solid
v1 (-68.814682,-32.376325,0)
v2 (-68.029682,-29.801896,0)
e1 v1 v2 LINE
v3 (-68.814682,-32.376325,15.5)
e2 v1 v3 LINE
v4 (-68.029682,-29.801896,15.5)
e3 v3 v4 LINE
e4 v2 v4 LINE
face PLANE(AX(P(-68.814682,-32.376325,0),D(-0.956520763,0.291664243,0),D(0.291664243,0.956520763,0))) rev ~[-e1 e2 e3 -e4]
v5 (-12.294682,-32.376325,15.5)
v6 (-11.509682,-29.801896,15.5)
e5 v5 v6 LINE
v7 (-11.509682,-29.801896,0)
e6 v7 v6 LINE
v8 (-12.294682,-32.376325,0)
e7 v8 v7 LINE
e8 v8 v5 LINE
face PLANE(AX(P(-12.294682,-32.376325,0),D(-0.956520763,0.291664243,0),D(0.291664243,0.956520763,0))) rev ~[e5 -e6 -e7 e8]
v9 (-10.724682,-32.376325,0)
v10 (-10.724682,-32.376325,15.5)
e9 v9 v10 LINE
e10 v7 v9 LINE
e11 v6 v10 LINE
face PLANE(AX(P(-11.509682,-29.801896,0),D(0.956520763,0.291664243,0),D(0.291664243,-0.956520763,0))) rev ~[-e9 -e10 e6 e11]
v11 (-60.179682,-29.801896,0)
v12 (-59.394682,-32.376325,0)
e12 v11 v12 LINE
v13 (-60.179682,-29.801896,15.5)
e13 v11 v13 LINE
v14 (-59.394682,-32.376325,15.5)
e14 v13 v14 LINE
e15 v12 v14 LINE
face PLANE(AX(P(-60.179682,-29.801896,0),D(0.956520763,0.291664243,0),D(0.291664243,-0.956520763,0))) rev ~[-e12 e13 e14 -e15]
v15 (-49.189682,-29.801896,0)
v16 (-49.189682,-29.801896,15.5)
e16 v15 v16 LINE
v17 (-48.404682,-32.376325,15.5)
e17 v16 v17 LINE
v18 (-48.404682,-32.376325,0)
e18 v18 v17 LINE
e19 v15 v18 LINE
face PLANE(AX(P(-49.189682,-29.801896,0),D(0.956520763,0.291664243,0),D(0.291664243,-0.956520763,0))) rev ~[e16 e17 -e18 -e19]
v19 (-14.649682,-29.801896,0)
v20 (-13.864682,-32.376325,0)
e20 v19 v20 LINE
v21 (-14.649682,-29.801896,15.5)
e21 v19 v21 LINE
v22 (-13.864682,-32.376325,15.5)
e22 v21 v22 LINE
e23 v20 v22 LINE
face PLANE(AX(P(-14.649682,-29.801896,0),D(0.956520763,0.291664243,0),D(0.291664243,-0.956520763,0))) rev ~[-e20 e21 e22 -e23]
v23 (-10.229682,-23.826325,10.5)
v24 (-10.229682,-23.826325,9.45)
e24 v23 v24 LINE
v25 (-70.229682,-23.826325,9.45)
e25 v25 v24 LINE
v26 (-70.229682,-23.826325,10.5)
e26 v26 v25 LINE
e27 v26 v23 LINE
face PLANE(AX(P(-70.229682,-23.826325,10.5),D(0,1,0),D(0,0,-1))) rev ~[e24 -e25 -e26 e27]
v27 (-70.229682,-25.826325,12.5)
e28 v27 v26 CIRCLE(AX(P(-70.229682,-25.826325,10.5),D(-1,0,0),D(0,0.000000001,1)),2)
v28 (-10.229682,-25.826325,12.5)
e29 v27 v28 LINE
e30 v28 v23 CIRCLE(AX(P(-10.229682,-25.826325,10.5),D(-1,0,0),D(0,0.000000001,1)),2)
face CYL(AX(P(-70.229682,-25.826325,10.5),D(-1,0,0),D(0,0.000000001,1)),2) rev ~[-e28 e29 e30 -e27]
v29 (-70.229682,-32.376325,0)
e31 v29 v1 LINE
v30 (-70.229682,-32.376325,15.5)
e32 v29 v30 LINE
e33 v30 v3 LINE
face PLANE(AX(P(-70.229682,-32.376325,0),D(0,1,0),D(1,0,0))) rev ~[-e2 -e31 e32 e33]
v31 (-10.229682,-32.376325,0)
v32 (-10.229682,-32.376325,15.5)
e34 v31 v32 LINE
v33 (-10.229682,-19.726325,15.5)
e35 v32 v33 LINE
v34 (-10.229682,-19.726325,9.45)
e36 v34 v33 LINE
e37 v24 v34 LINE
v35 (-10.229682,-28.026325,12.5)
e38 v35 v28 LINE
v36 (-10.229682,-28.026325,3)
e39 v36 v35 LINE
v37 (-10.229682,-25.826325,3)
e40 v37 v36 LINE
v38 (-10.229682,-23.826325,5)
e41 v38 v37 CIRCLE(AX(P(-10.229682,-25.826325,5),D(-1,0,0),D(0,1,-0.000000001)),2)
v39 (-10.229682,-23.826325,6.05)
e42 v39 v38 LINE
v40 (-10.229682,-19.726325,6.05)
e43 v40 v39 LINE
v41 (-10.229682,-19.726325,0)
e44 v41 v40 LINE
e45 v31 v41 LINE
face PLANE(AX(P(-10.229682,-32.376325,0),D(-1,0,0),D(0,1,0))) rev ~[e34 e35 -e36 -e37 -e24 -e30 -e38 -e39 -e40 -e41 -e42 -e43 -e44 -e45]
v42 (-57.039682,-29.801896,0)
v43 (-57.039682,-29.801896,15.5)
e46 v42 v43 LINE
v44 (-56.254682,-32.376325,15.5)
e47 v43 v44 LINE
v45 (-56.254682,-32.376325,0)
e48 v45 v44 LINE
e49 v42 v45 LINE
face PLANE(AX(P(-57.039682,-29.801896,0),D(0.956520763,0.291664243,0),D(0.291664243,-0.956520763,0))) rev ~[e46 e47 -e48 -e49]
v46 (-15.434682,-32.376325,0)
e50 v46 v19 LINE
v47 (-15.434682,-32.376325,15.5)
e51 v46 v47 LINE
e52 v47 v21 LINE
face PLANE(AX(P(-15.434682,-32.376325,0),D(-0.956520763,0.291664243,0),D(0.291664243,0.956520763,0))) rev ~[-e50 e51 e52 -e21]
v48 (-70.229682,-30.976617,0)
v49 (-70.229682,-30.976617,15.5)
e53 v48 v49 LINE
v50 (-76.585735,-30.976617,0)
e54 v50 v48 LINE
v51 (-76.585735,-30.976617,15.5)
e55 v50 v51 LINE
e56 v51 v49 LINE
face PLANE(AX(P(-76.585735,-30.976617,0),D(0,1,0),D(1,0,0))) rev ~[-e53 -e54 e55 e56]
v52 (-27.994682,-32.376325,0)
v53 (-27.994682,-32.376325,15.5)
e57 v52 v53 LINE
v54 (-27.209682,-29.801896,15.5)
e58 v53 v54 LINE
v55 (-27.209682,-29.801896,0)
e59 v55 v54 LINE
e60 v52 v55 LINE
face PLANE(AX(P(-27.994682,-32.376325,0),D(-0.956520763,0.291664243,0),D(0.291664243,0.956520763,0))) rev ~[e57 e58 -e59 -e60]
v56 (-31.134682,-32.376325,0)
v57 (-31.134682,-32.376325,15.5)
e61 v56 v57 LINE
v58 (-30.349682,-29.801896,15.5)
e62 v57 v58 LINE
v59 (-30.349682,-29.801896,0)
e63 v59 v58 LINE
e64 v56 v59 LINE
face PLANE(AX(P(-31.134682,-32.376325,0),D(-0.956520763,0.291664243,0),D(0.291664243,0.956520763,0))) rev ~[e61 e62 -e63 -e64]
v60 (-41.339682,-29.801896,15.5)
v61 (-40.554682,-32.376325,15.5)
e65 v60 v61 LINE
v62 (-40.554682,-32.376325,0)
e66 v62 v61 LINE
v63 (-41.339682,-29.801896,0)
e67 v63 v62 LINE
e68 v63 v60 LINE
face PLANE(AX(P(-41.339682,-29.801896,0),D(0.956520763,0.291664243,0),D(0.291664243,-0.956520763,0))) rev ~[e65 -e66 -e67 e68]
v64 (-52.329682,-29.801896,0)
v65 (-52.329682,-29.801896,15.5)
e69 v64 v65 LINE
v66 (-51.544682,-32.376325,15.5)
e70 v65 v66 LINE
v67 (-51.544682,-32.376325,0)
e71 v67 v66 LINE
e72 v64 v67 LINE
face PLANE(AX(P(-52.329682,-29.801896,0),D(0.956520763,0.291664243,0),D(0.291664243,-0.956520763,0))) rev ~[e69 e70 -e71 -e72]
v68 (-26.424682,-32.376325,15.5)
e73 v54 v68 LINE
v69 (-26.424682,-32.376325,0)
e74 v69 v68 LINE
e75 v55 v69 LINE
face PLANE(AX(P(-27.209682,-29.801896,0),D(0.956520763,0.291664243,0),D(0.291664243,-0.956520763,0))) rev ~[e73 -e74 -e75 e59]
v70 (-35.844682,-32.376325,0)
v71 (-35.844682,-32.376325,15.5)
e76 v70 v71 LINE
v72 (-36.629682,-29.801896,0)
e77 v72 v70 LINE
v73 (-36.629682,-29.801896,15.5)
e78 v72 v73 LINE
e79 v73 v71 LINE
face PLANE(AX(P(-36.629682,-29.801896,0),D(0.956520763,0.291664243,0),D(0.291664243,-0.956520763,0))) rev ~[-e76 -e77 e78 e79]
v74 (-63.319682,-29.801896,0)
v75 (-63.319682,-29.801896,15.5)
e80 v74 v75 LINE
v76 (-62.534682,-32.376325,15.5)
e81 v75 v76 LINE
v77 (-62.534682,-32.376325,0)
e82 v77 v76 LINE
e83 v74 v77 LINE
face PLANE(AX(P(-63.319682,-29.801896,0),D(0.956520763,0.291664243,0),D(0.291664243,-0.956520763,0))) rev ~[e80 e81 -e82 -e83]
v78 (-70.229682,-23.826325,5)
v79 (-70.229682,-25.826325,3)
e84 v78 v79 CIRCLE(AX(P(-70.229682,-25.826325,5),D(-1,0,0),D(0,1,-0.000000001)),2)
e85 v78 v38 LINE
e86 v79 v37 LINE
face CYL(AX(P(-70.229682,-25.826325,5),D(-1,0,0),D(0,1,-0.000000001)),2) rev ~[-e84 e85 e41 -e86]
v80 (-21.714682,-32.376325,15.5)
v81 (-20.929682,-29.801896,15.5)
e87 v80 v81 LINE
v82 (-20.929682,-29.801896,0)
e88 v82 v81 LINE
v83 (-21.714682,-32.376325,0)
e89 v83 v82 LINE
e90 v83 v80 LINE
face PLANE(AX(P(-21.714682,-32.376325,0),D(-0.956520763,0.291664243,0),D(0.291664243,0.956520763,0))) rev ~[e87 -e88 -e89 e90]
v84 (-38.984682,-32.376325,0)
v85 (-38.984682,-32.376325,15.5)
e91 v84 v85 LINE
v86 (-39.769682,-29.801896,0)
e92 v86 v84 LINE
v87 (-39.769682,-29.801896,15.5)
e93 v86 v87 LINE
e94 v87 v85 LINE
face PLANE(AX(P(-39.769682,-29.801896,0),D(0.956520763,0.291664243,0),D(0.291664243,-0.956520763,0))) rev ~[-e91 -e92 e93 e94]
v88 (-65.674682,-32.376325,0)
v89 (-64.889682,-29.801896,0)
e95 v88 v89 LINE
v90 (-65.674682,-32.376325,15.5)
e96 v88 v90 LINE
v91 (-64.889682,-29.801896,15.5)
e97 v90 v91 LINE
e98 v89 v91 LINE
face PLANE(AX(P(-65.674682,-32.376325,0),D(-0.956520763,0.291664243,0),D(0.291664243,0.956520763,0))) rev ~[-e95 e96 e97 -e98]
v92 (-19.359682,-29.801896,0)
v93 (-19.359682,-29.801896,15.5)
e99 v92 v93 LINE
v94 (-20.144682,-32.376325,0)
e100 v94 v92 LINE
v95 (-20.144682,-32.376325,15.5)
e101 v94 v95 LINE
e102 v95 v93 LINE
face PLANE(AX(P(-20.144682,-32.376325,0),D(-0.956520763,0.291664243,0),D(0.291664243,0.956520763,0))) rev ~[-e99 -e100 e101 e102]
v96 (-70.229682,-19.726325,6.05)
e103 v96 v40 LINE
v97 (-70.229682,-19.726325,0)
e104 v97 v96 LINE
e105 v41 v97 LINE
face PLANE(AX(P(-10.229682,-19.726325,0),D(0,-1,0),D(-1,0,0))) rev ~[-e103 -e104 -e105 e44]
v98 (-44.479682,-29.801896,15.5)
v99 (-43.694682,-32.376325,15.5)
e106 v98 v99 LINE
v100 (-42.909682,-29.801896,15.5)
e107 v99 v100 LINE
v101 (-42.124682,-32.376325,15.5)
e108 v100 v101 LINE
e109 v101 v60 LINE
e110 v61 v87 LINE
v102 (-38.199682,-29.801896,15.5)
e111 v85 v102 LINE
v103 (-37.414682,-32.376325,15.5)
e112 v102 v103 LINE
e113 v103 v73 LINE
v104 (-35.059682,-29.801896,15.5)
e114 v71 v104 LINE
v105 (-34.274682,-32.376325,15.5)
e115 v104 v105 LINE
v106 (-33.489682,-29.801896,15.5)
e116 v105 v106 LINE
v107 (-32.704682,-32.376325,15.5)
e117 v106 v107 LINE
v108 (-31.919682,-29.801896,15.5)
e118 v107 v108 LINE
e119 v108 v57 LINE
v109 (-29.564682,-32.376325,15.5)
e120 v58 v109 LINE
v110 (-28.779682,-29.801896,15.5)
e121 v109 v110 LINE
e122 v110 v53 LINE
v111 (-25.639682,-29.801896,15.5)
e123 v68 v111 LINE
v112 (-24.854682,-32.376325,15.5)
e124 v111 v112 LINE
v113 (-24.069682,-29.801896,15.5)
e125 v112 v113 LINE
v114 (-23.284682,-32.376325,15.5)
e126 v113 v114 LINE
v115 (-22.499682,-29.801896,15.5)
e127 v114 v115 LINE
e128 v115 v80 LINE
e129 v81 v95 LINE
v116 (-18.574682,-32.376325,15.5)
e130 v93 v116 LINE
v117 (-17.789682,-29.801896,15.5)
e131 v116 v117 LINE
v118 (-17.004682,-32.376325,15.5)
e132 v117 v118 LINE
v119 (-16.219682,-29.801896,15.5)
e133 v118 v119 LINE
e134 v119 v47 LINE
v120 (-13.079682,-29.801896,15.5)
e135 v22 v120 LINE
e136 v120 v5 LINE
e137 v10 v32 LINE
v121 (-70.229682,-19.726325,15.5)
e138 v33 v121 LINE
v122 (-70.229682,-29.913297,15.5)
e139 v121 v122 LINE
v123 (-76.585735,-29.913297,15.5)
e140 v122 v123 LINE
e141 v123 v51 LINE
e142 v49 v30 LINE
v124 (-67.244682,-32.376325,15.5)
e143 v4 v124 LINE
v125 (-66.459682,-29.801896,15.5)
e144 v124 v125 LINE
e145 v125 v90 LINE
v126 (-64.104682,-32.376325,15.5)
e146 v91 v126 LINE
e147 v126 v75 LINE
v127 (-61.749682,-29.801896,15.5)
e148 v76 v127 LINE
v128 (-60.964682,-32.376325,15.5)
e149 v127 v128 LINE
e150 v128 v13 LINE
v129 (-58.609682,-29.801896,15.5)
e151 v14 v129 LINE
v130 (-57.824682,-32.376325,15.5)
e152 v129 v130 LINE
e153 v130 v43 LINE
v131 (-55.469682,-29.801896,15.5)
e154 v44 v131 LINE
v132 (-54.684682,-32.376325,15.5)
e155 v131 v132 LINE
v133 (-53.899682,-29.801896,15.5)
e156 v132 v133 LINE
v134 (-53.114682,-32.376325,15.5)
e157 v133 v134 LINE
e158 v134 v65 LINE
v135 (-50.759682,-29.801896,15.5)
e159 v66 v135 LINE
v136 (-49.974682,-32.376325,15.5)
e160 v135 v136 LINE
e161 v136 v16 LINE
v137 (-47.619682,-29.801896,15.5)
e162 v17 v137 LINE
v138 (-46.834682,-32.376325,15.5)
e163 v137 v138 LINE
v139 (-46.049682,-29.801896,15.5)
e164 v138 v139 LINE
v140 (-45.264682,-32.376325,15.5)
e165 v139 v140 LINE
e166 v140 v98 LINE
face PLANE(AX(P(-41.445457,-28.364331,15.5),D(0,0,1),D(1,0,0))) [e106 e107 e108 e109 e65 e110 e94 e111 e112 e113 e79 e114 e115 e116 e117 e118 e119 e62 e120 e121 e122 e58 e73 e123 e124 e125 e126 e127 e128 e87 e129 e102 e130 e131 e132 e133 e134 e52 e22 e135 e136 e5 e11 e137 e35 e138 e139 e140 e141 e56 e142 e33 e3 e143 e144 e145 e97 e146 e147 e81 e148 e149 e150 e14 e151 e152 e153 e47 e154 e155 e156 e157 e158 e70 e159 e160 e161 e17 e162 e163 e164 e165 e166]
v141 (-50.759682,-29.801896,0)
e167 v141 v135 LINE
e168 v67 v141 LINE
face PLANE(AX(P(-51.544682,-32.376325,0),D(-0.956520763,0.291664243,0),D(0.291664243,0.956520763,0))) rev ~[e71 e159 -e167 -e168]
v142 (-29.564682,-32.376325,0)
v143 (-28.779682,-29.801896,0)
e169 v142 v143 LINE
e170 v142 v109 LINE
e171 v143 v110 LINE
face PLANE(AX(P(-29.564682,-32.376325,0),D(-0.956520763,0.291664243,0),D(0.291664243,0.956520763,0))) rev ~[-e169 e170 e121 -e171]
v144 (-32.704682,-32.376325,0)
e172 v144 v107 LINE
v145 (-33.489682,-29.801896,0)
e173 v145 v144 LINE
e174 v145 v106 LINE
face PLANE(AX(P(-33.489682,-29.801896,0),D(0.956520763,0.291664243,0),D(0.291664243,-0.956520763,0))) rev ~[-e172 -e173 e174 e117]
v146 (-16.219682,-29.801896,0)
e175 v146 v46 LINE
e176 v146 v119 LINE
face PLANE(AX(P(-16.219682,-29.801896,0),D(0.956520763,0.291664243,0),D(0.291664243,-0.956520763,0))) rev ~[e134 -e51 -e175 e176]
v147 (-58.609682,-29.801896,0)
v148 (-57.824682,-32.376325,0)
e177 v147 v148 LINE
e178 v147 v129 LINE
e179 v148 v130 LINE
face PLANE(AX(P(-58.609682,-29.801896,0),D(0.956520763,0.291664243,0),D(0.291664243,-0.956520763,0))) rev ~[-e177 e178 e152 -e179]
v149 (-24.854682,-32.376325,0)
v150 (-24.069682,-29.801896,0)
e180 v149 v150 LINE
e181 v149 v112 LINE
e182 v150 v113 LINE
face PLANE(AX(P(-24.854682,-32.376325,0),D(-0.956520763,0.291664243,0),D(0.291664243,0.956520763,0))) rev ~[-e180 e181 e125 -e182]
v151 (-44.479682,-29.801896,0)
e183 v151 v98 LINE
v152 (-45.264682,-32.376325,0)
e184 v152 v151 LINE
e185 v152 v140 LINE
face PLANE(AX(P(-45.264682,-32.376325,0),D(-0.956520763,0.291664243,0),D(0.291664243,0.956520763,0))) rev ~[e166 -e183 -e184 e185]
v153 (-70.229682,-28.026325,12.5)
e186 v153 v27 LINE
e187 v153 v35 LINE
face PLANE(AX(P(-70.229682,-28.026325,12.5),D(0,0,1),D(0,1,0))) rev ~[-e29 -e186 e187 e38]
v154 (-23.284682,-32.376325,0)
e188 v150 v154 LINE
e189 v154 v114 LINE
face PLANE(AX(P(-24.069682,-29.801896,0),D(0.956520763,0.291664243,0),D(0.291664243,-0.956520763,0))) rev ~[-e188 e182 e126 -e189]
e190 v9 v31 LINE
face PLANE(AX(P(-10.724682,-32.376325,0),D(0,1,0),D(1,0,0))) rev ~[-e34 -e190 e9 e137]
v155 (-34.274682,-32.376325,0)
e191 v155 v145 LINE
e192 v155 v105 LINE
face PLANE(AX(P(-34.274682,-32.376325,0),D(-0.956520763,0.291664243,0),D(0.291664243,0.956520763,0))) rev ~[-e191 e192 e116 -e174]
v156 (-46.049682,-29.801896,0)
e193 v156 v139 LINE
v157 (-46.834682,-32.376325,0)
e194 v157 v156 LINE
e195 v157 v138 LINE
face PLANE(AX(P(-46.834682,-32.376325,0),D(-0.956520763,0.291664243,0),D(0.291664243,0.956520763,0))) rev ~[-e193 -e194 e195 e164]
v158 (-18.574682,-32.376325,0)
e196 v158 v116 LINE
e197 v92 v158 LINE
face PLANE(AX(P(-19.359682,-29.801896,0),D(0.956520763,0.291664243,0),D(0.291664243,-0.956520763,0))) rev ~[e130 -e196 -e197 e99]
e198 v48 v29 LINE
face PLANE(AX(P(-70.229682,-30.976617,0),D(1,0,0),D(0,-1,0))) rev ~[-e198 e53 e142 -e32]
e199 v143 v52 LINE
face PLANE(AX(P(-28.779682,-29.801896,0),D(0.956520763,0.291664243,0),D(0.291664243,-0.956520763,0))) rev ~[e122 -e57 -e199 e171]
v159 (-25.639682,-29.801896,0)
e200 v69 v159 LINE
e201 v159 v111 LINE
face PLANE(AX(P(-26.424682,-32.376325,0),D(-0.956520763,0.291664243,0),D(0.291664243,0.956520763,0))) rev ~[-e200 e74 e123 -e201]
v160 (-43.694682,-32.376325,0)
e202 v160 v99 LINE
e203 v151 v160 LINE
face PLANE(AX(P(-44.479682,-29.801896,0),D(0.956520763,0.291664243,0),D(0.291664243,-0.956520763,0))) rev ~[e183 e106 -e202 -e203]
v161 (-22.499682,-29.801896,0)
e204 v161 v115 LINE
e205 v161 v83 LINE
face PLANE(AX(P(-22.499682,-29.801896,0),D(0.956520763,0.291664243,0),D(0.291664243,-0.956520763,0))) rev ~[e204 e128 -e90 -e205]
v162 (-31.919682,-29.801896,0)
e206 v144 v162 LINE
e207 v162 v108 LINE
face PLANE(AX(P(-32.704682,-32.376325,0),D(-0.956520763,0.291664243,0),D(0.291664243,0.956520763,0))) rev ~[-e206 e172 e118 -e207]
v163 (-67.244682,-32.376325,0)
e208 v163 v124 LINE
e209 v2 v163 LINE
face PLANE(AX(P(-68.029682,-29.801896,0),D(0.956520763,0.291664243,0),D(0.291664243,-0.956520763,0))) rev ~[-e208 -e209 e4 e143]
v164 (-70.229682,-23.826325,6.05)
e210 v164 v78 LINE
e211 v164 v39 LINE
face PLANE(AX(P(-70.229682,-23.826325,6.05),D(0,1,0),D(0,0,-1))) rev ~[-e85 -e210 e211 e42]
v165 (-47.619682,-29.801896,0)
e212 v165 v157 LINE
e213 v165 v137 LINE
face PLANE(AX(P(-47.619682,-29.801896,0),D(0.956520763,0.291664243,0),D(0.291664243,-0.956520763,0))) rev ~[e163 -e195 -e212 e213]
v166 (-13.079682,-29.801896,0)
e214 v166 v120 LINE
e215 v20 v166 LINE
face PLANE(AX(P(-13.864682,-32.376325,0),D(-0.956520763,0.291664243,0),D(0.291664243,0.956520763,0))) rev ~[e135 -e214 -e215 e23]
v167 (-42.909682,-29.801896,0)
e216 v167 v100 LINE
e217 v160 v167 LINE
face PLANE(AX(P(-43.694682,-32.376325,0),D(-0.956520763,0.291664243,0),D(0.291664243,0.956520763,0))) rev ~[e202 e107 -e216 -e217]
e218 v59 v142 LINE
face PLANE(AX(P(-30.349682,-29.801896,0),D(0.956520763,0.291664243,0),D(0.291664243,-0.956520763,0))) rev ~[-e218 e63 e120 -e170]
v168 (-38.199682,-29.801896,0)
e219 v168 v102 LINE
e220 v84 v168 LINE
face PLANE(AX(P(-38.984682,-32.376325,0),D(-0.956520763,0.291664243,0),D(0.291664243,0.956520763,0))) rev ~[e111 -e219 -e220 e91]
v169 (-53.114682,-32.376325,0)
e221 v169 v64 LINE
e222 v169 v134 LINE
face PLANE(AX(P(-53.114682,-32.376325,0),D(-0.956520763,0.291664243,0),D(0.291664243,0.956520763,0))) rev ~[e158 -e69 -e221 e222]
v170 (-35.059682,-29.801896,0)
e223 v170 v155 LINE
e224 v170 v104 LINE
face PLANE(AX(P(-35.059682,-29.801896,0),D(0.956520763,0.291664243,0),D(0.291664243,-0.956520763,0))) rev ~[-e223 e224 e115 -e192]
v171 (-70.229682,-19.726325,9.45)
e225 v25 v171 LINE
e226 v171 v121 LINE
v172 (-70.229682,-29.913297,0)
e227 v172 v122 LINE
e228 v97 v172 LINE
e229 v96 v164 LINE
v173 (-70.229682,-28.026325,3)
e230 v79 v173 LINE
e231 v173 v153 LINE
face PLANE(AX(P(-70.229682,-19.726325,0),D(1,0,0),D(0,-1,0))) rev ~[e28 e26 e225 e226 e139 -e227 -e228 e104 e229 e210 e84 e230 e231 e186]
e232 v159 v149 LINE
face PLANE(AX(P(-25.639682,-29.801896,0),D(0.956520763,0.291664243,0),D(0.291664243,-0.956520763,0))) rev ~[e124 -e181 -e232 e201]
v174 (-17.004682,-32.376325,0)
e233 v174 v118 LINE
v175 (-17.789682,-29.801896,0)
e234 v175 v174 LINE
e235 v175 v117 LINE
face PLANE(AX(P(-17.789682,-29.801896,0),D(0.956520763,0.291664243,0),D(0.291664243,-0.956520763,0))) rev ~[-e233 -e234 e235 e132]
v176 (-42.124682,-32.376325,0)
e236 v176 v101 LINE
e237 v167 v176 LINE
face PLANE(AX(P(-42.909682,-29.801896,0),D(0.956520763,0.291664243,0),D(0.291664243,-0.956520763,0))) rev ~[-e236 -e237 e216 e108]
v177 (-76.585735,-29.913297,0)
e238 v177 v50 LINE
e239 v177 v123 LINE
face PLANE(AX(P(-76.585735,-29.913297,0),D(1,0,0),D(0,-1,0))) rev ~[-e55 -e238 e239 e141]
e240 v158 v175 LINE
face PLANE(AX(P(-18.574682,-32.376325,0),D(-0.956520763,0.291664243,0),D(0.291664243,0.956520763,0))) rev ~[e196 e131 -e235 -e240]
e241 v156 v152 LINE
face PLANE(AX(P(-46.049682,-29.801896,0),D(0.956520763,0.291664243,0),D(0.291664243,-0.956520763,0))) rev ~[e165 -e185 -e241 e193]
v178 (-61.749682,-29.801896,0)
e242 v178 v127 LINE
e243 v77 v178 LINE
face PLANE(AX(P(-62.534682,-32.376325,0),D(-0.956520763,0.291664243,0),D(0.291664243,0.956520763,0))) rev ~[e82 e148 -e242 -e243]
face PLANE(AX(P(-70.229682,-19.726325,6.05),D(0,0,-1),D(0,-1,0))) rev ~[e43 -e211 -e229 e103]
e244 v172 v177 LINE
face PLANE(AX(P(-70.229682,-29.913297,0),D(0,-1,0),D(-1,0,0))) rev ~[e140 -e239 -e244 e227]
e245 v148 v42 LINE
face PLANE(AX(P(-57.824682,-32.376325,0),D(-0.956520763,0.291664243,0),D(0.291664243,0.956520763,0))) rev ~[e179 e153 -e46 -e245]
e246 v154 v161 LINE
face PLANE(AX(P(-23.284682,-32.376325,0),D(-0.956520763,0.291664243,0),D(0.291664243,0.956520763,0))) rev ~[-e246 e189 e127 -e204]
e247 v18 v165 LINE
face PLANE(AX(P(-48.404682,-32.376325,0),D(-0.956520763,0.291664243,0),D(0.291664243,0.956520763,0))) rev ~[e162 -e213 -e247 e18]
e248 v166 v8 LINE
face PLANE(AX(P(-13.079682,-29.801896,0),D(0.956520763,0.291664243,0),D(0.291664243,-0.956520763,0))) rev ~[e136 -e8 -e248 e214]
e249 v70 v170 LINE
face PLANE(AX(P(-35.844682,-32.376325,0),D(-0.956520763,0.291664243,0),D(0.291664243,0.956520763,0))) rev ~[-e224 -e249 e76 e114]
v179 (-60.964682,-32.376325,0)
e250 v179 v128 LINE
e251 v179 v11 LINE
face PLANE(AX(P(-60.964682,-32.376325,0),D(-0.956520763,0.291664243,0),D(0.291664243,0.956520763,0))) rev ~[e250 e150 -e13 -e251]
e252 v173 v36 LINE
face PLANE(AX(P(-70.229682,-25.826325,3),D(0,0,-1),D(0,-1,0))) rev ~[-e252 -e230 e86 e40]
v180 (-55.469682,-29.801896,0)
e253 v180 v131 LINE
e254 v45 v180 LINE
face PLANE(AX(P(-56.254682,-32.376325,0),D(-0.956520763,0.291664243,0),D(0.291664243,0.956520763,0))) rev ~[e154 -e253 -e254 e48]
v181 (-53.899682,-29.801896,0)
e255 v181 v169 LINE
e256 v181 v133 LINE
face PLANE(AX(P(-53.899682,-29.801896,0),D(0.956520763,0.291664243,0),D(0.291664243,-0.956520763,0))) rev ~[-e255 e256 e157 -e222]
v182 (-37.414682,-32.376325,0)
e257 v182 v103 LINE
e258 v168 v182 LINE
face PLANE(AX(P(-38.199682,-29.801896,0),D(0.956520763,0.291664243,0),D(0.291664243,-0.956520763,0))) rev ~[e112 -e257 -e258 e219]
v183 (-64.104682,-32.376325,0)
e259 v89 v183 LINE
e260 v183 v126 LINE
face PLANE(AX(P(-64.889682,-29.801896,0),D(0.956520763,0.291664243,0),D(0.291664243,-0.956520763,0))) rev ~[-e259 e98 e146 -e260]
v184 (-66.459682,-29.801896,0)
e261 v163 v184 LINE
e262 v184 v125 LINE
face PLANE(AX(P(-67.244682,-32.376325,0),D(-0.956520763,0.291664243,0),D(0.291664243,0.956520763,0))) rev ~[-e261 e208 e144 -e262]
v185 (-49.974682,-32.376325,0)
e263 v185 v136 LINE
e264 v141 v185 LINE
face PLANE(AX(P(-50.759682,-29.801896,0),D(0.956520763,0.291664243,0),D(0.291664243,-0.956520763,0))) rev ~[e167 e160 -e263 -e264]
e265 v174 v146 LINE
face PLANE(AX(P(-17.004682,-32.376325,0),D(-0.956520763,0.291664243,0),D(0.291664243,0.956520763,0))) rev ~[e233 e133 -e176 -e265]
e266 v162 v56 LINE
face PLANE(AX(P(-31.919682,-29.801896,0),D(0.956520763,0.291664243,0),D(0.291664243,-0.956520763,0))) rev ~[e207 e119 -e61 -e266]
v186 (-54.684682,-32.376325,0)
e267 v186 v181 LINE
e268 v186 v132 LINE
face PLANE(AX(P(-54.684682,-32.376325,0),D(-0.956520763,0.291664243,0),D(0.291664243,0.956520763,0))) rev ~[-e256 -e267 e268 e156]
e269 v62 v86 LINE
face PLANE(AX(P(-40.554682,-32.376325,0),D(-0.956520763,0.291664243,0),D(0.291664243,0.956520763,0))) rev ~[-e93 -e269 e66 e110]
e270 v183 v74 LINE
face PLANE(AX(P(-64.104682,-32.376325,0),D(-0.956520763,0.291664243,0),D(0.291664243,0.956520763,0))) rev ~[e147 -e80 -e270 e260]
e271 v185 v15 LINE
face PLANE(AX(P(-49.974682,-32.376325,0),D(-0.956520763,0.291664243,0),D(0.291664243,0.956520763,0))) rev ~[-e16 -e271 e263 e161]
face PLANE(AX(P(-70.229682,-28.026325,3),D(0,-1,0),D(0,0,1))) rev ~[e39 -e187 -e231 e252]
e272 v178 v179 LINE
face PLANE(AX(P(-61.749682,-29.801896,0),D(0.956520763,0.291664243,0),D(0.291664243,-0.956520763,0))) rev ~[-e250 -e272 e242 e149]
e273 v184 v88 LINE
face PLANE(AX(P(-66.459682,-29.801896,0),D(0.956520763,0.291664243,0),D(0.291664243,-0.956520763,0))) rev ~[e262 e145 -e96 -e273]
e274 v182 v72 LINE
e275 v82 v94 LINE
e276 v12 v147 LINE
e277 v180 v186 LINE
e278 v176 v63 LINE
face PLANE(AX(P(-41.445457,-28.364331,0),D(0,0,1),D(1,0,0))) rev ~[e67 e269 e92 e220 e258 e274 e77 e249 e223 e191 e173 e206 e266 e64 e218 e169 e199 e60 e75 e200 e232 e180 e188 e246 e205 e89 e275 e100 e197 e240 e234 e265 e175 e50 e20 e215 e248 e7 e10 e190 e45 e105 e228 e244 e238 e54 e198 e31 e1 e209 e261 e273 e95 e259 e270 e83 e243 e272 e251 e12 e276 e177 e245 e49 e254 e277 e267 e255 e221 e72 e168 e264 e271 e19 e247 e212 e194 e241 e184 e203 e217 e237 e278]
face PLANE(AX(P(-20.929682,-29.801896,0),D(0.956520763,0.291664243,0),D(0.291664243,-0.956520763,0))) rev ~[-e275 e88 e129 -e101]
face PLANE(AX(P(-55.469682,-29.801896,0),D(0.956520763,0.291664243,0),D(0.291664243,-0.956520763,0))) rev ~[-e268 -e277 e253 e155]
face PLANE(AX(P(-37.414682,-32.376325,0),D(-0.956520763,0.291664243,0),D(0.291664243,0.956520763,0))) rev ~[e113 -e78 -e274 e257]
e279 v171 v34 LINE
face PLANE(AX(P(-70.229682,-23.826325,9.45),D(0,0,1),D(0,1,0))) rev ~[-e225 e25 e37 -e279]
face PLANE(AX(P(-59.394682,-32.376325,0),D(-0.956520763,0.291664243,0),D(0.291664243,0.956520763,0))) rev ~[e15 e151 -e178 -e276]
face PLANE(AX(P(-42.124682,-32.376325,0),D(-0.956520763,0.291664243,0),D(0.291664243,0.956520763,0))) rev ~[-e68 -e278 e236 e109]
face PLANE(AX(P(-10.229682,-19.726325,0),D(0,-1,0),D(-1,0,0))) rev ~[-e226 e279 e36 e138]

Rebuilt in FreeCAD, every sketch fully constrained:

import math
import FreeCAD as App
import Part
import Sketcher
from FreeCAD import Vector

doc = App.newDocument("Part")
body = doc.addObject("PartDesign::Body", "Body")

sketch1 = body.newObject("Sketcher::SketchObject", "Sketch")
sketch1.AttachmentSupport = (doc.getObject("XY_Plane"), [""])
sketch1.MapMode = "FlatFace"
sketch1.addGeometry(Part.LineSegment(Vector(-10.23, -19.73, 0), Vector(-70.23, -19.73, 0)), False)
sketch1.addGeometry(Part.LineSegment(Vector(-70.23, -19.73, 0), Vector(-70.23, -29.91, 0)), False)
sketch1.addGeometry(Part.LineSegment(Vector(-70.23, -29.91, 0), Vector(-76.59, -29.91, 0)), False)
sketch1.addGeometry(Part.LineSegment(Vector(-76.59, -29.91, 0), Vector(-76.59, -30.98, 0)), False)
sketch1.addGeometry(Part.LineSegment(Vector(-76.59, -30.98, 0), Vector(-70.23, -30.98, 0)), False)
sketch1.addGeometry(Part.LineSegment(Vector(-70.23, -30.98, 0), Vector(-70.23, -32.38, 0)), False)
sketch1.addGeometry(Part.LineSegment(Vector(-70.23, -32.38, 0), Vector(-68.81, -32.38, 0)), False)
sketch1.addGeometry(Part.LineSegment(Vector(-68.81, -32.38, 0), Vector(-68.03, -29.8, 0)), False)
sketch1.addGeometry(Part.LineSegment(Vector(-68.03, -29.8, 0), Vector(-67.24, -32.38, 0)), False)
sketch1.addGeometry(Part.LineSegment(Vector(-67.24, -32.38, 0), Vector(-66.46, -29.8, 0)), False)
sketch1.addGeometry(Part.LineSegment(Vector(-66.46, -29.8, 0), Vector(-65.67, -32.38, 0)), False)
sketch1.addGeometry(Part.LineSegment(Vector(-65.67, -32.38, 0), Vector(-64.89, -29.8, 0)), False)
sketch1.addGeometry(Part.LineSegment(Vector(-64.89, -29.8, 0), Vector(-64.1, -32.38, 0)), False)
sketch1.addGeometry(Part.LineSegment(Vector(-64.1, -32.38, 0), Vector(-63.32, -29.8, 0)), False)
sketch1.addGeometry(Part.LineSegment(Vector(-63.32, -29.8, 0), Vector(-62.53, -32.38, 0)), False)
sketch1.addGeometry(Part.LineSegment(Vector(-62.53, -32.38, 0), Vector(-61.75, -29.8, 0)), False)
sketch1.addGeometry(Part.LineSegment(Vector(-61.75, -29.8, 0), Vector(-60.96, -32.38, 0)), False)
sketch1.addGeometry(Part.LineSegment(Vector(-60.96, -32.38, 0), Vector(-60.18, -29.8, 0)), False)
sketch1.addGeometry(Part.LineSegment(Vector(-60.18, -29.8, 0), Vector(-59.39, -32.38, 0)), False)
sketch1.addGeometry(Part.LineSegment(Vector(-59.39, -32.38, 0), Vector(-58.61, -29.8, 0)), False)
sketch1.addGeometry(Part.LineSegment(Vector(-58.61, -29.8, 0), Vector(-57.82, -32.38, 0)), False)
sketch1.addGeometry(Part.LineSegment(Vector(-57.82, -32.38, 0), Vector(-57.04, -29.8, 0)), False)
sketch1.addGeometry(Part.LineSegment(Vector(-57.04, -29.8, 0), Vector(-56.25, -32.38, 0)), False)
sketch1.addGeometry(Part.LineSegment(Vector(-56.25, -32.38, 0), Vector(-55.47, -29.8, 0)), False)
sketch1.addGeometry(Part.LineSegment(Vector(-55.47, -29.8, 0), Vector(-54.68, -32.38, 0)), False)
sketch1.addGeometry(Part.LineSegment(Vector(-54.68, -32.38, 0), Vector(-53.9, -29.8, 0)), False)
sketch1.addGeometry(Part.LineSegment(Vector(-53.9, -29.8, 0), Vector(-53.11, -32.38, 0)), False)
sketch1.addGeometry(Part.LineSegment(Vector(-53.11, -32.38, 0), Vector(-52.33, -29.8, 0)), False)
sketch1.addGeometry(Part.LineSegment(Vector(-52.33, -29.8, 0), Vector(-51.54, -32.38, 0)), False)
sketch1.addGeometry(Part.LineSegment(Vector(-51.54, -32.38, 0), Vector(-50.76, -29.8, 0)), False)
sketch1.addGeometry(Part.LineSegment(Vector(-50.76, -29.8, 0), Vector(-49.97, -32.38, 0)), False)
sketch1.addGeometry(Part.LineSegment(Vector(-49.97, -32.38, 0), Vector(-49.19, -29.8, 0)), False)
sketch1.addGeometry(Part.LineSegment(Vector(-49.19, -29.8, 0), Vector(-48.4, -32.38, 0)), False)
sketch1.addGeometry(Part.LineSegment(Vector(-48.4, -32.38, 0), Vector(-47.62, -29.8, 0)), False)
sketch1.addGeometry(Part.LineSegment(Vector(-47.62, -29.8, 0), Vector(-46.83, -32.38, 0)), False)
sketch1.addGeometry(Part.LineSegment(Vector(-46.83, -32.38, 0), Vector(-46.05, -29.8, 0)), False)
sketch1.addGeometry(Part.LineSegment(Vector(-46.05, -29.8, 0), Vector(-45.26, -32.38, 0)), False)
sketch1.addGeometry(Part.LineSegment(Vector(-45.26, -32.38, 0), Vector(-44.48, -29.8, 0)), False)
sketch1.addGeometry(Part.LineSegment(Vector(-44.48, -29.8, 0), Vector(-43.69, -32.38, 0)), False)
sketch1.addGeometry(Part.LineSegment(Vector(-43.69, -32.38, 0), Vector(-42.91, -29.8, 0)), False)
sketch1.addGeometry(Part.LineSegment(Vector(-42.91, -29.8, 0), Vector(-42.12, -32.38, 0)), False)
sketch1.addGeometry(Part.LineSegment(Vector(-42.12, -32.38, 0), Vector(-41.34, -29.8, 0)), False)
sketch1.addGeometry(Part.LineSegment(Vector(-41.34, -29.8, 0), Vector(-40.55, -32.38, 0)), False)
sketch1.addGeometry(Part.LineSegment(Vector(-40.55, -32.38, 0), Vector(-39.77, -29.8, 0)), False)
sketch1.addGeometry(Part.LineSegment(Vector(-39.77, -29.8, 0), Vector(-38.98, -32.38, 0)), False)
sketch1.addGeometry(Part.LineSegment(Vector(-38.98, -32.38, 0), Vector(-38.2, -29.8, 0)), False)
sketch1.addGeometry(Part.LineSegment(Vector(-38.2, -29.8, 0), Vector(-37.41, -32.38, 0)), False)
sketch1.addGeometry(Part.LineSegment(Vector(-37.41, -32.38, 0), Vector(-36.63, -29.8, 0)), False)
sketch1.addGeometry(Part.LineSegment(Vector(-36.63, -29.8, 0), Vector(-35.84, -32.38, 0)), False)
sketch1.addGeometry(Part.LineSegment(Vector(-35.84, -32.38, 0), Vector(-35.06, -29.8, 0)), False)
sketch1.addGeometry(Part.LineSegment(Vector(-35.06, -29.8, 0), Vector(-34.27, -32.38, 0)), False)
sketch1.addGeometry(Part.LineSegment(Vector(-34.27, -32.38, 0), Vector(-33.49, -29.8, 0)), False)
sketch1.addGeometry(Part.LineSegment(Vector(-33.49, -29.8, 0), Vector(-32.7, -32.38, 0)), False)
sketch1.addGeometry(Part.LineSegment(Vector(-32.7, -32.38, 0), Vector(-31.92, -29.8, 0)), False)
sketch1.addGeometry(Part.LineSegment(Vector(-31.92, -29.8, 0), Vector(-31.13, -32.38, 0)), False)
sketch1.addGeometry(Part.LineSegment(Vector(-31.13, -32.38, 0), Vector(-30.35, -29.8, 0)), False)
sketch1.addGeometry(Part.LineSegment(Vector(-30.35, -29.8, 0), Vector(-29.56, -32.38, 0)), False)
sketch1.addGeometry(Part.LineSegment(Vector(-29.56, -32.38, 0), Vector(-28.78, -29.8, 0)), False)
sketch1.addGeometry(Part.LineSegment(Vector(-28.78, -29.8, 0), Vector(-27.99, -32.38, 0)), False)
sketch1.addGeometry(Part.LineSegment(Vector(-27.99, -32.38, 0), Vector(-27.21, -29.8, 0)), False)
sketch1.addGeometry(Part.LineSegment(Vector(-27.21, -29.8, 0), Vector(-26.42, -32.38, 0)), False)
sketch1.addGeometry(Part.LineSegment(Vector(-26.42, -32.38, 0), Vector(-25.64, -29.8, 0)), False)
sketch1.addGeometry(Part.LineSegment(Vector(-25.64, -29.8, 0), Vector(-24.85, -32.38, 0)), False)
sketch1.addGeometry(Part.LineSegment(Vector(-24.85, -32.38, 0), Vector(-24.07, -29.8, 0)), False)
sketch1.addGeometry(Part.LineSegment(Vector(-24.07, -29.8, 0), Vector(-23.28, -32.38, 0)), False)
sketch1.addGeometry(Part.LineSegment(Vector(-23.28, -32.38, 0), Vector(-22.5, -29.8, 0)), False)
sketch1.addGeometry(Part.LineSegment(Vector(-22.5, -29.8, 0), Vector(-21.71, -32.38, 0)), False)
sketch1.addGeometry(Part.LineSegment(Vector(-21.71, -32.38, 0), Vector(-20.93, -29.8, 0)), False)
sketch1.addGeometry(Part.LineSegment(Vector(-20.93, -29.8, 0), Vector(-20.14, -32.38, 0)), False)
sketch1.addGeometry(Part.LineSegment(Vector(-20.14, -32.38, 0), Vector(-19.36, -29.8, 0)), False)
sketch1.addGeometry(Part.LineSegment(Vector(-19.36, -29.8, 0), Vector(-18.57, -32.38, 0)), False)
sketch1.addGeometry(Part.LineSegment(Vector(-18.57, -32.38, 0), Vector(-17.79, -29.8, 0)), False)
sketch1.addGeometry(Part.LineSegment(Vector(-17.79, -29.8, 0), Vector(-17, -32.38, 0)), False)
sketch1.addGeometry(Part.LineSegment(Vector(-17, -32.38, 0), Vector(-16.22, -29.8, 0)), False)
sketch1.addGeometry(Part.LineSegment(Vector(-16.22, -29.8, 0), Vector(-15.43, -32.38, 0)), False)
sketch1.addGeometry(Part.LineSegment(Vector(-15.43, -32.38, 0), Vector(-14.65, -29.8, 0)), False)
sketch1.addGeometry(Part.LineSegment(Vector(-14.65, -29.8, 0), Vector(-13.86, -32.38, 0)), False)
sketch1.addGeometry(Part.LineSegment(Vector(-13.86, -32.38, 0), Vector(-13.08, -29.8, 0)), False)
sketch1.addGeometry(Part.LineSegment(Vector(-13.08, -29.8, 0), Vector(-12.29, -32.38, 0)), False)
sketch1.addGeometry(Part.LineSegment(Vector(-12.29, -32.38, 0), Vector(-11.51, -29.8, 0)), False)
sketch1.addGeometry(Part.LineSegment(Vector(-11.51, -29.8, 0), Vector(-10.72, -32.38, 0)), False)
sketch1.addGeometry(Part.LineSegment(Vector(-10.72, -32.38, 0), Vector(-10.23, -32.38, 0)), False)
sketch1.addGeometry(Part.LineSegment(Vector(-10.23, -32.38, 0), Vector(-10.23, -19.73, 0)), False)
sketch1.addConstraint(Sketcher.Constraint("Coincident", 0, 2, 1, 1))
sketch1.addConstraint(Sketcher.Constraint("Coincident", 1, 2, 2, 1))
sketch1.addConstraint(Sketcher.Constraint("Coincident", 2, 2, 3, 1))
sketch1.addConstraint(Sketcher.Constraint("Coincident", 3, 2, 4, 1))
sketch1.addConstraint(Sketcher.Constraint("Coincident", 4, 2, 5, 1))
sketch1.addConstraint(Sketcher.Constraint("Coincident", 5, 2, 6, 1))
sketch1.addConstraint(Sketcher.Constraint("Coincident", 6, 2, 7, 1))
sketch1.addConstraint(Sketcher.Constraint("Coincident", 7, 2, 8, 1))
sketch1.addConstraint(Sketcher.Constraint("Coincident", 8, 2, 9, 1))
sketch1.addConstraint(Sketcher.Constraint("Coincident", 9, 2, 10, 1))
sketch1.addConstraint(Sketcher.Constraint("Coincident", 10, 2, 11, 1))
sketch1.addConstraint(Sketcher.Constraint("Coincident", 11, 2, 12, 1))
sketch1.addConstraint(Sketcher.Constraint("Coincident", 12, 2, 13, 1))
sketch1.addConstraint(Sketcher.Constraint("Coincident", 13, 2, 14, 1))
sketch1.addConstraint(Sketcher.Constraint("Coincident", 14, 2, 15, 1))
sketch1.addConstraint(Sketcher.Constraint("Coincident", 15, 2, 16, 1))
sketch1.addConstraint(Sketcher.Constraint("Coincident", 16, 2, 17, 1))
sketch1.addConstraint(Sketcher.Constraint("Coincident", 17, 2, 18, 1))
sketch1.addConstraint(Sketcher.Constraint("Coincident", 18, 2, 19, 1))
sketch1.addConstraint(Sketcher.Constraint("Coincident", 19, 2, 20, 1))
sketch1.addConstraint(Sketcher.Constraint("Coincident", 20, 2, 21, 1))
sketch1.addConstraint(Sketcher.Constraint("Coincident", 21, 2, 22, 1))
sketch1.addConstraint(Sketcher.Constraint("Coincident", 22, 2, 23, 1))
sketch1.addConstraint(Sketcher.Constraint("Coincident", 23, 2, 24, 1))
sketch1.addConstraint(Sketcher.Constraint("Coincident", 24, 2, 25, 1))
sketch1.addConstraint(Sketcher.Constraint("Coincident", 25, 2, 26, 1))
sketch1.addConstraint(Sketcher.Constraint("Coincident", 26, 2, 27, 1))
sketch1.addConstraint(Sketcher.Constraint("Coincident", 27, 2, 28, 1))
sketch1.addConstraint(Sketcher.Constraint("Coincident", 28, 2, 29, 1))
sketch1.addConstraint(Sketcher.Constraint("Coincident", 29, 2, 30, 1))
sketch1.addConstraint(Sketcher.Constraint("Coincident", 30, 2, 31, 1))
sketch1.addConstraint(Sketcher.Constraint("Coincident", 31, 2, 32, 1))
sketch1.addConstraint(Sketcher.Constraint("Coincident", 32, 2, 33, 1))
sketch1.addConstraint(Sketcher.Constraint("Coincident", 33, 2, 34, 1))
sketch1.addConstraint(Sketcher.Constraint("Coincident", 34, 2, 35, 1))
sketch1.addConstraint(Sketcher.Constraint("Coincident", 35, 2, 36, 1))
sketch1.addConstraint(Sketcher.Constraint("Coincident", 36, 2, 37, 1))
sketch1.addConstraint(Sketcher.Constraint("Coincident", 37, 2, 38, 1))
sketch1.addConstraint(Sketcher.Constraint("Coincident", 38, 2, 39, 1))
sketch1.addConstraint(Sketcher.Constraint("Coincident", 39, 2, 40, 1))
sketch1.addConstraint(Sketcher.Constraint("Coincident", 40, 2, 41, 1))
sketch1.addConstraint(Sketcher.Constraint("Coincident", 41, 2, 42, 1))
sketch1.addConstraint(Sketcher.Constraint("Coincident", 42, 2, 43, 1))
sketch1.addConstraint(Sketcher.Constraint("Coincident", 43, 2, 44, 1))
sketch1.addConstraint(Sketcher.Constraint("Coincident", 44, 2, 45, 1))
sketch1.addConstraint(Sketcher.Constraint("Coincident", 45, 2, 46, 1))
sketch1.addConstraint(Sketcher.Constraint("Coincident", 46, 2, 47, 1))
sketch1.addConstraint(Sketcher.Constraint("Coincident", 47, 2, 48, 1))
sketch1.addConstraint(Sketcher.Constraint("Coincident", 48, 2, 49, 1))
sketch1.addConstraint(Sketcher.Constraint("Coincident", 49, 2, 50, 1))
sketch1.addConstraint(Sketcher.Constraint("Coincident", 50, 2, 51, 1))
sketch1.addConstraint(Sketcher.Constraint("Coincident", 51, 2, 52, 1))
sketch1.addConstraint(Sketcher.Constraint("Coincident", 52, 2, 53, 1))
sketch1.addConstraint(Sketcher.Constraint("Coincident", 53, 2, 54, 1))
sketch1.addConstraint(Sketcher.Constraint("Coincident", 54, 2, 55, 1))
sketch1.addConstraint(Sketcher.Constraint("Coincident", 55, 2, 56, 1))
sketch1.addConstraint(Sketcher.Constraint("Coincident", 56, 2, 57, 1))
sketch1.addConstraint(Sketcher.Constraint("Coincident", 57, 2, 58, 1))
sketch1.addConstraint(Sketcher.Constraint("Coincident", 58, 2, 59, 1))
sketch1.addConstraint(Sketcher.Constraint("Coincident", 59, 2, 60, 1))
sketch1.addConstraint(Sketcher.Constraint("Coincident", 60, 2, 61, 1))
sketch1.addConstraint(Sketcher.Constraint("Coincident", 61, 2, 62, 1))
sketch1.addConstraint(Sketcher.Constraint("Coincident", 62, 2, 63, 1))
sketch1.addConstraint(Sketcher.Constraint("Coincident", 63, 2, 64, 1))
sketch1.addConstraint(Sketcher.Constraint("Coincident", 64, 2, 65, 1))
sketch1.addConstraint(Sketcher.Constraint("Coincident", 65, 2, 66, 1))
sketch1.addConstraint(Sketcher.Constraint("Coincident", 66, 2, 67, 1))
sketch1.addConstraint(Sketcher.Constraint("Coincident", 67, 2, 68, 1))
sketch1.addConstraint(Sketcher.Constraint("Coincident", 68, 2, 69, 1))
sketch1.addConstraint(Sketcher.Constraint("Coincident", 69, 2, 70, 1))
sketch1.addConstraint(Sketcher.Constraint("Coincident", 70, 2, 71, 1))
sketch1.addConstraint(Sketcher.Constraint("Coincident", 71, 2, 72, 1))
sketch1.addConstraint(Sketcher.Constraint("Coincident", 72, 2, 73, 1))
sketch1.addConstraint(Sketcher.Constraint("Coincident", 73, 2, 74, 1))
sketch1.addConstraint(Sketcher.Constraint("Coincident", 74, 2, 75, 1))
sketch1.addConstraint(Sketcher.Constraint("Coincident", 75, 2, 76, 1))
sketch1.addConstraint(Sketcher.Constraint("Coincident", 76, 2, 77, 1))
sketch1.addConstraint(Sketcher.Constraint("Coincident", 77, 2, 78, 1))
sketch1.addConstraint(Sketcher.Constraint("Coincident", 78, 2, 79, 1))
sketch1.addConstraint(Sketcher.Constraint("Coincident", 79, 2, 80, 1))
sketch1.addConstraint(Sketcher.Constraint("Coincident", 80, 2, 81, 1))
sketch1.addConstraint(Sketcher.Constraint("Coincident", 81, 2, 82, 1))
sketch1.addConstraint(Sketcher.Constraint("Coincident", 82, 2, 0, 1))
sketch1.addConstraint(Sketcher.Constraint("Horizontal", 0))
sketch1.addConstraint(Sketcher.Constraint("Vertical", 1))
sketch1.addConstraint(Sketcher.Constraint("Horizontal", 2))
sketch1.addConstraint(Sketcher.Constraint("Vertical", 3))
sketch1.addConstraint(Sketcher.Constraint("Horizontal", 4))
sketch1.addConstraint(Sketcher.Constraint("Vertical", 5))
sketch1.addConstraint(Sketcher.Constraint("Horizontal", 6))
sketch1.addConstraint(Sketcher.Constraint("Horizontal", 81))
sketch1.addConstraint(Sketcher.Constraint("Vertical", 82))
sketch1.addConstraint(Sketcher.Constraint("Parallel", 7, 9))
sketch1.addConstraint(Sketcher.Constraint("Parallel", 8, 10))
sketch1.addConstraint(Sketcher.Constraint("Parallel", 9, 11))
sketch1.addConstraint(Sketcher.Constraint("Parallel", 10, 12))
sketch1.addConstraint(Sketcher.Constraint("Parallel", 11, 13))
sketch1.addConstraint(Sketcher.Constraint("Parallel", 12, 14))
sketch1.addConstraint(Sketcher.Constraint("Parallel", 13, 15))
sketch1.addConstraint(Sketcher.Constraint("Parallel", 14, 16))
sketch1.addConstraint(Sketcher.Constraint("Parallel", 15, 17))
sketch1.addConstraint(Sketcher.Constraint("Parallel", 16, 18))
sketch1.addConstraint(Sketcher.Constraint("Parallel", 17, 19))
sketch1.addConstraint(Sketcher.Constraint("Parallel", 18, 20))
sketch1.addConstraint(Sketcher.Constraint("Parallel", 19, 21))
sketch1.addConstraint(Sketcher.Constraint("Parallel", 20, 22))
sketch1.addConstraint(Sketcher.Constraint("Parallel", 21, 23))
sketch1.addConstraint(Sketcher.Constraint("Parallel", 22, 24))
sketch1.addConstraint(Sketcher.Constraint("Parallel", 23, 25))
sketch1.addConstraint(Sketcher.Constraint("Parallel", 24, 26))
sketch1.addConstraint(Sketcher.Constraint("Parallel", 25, 27))
sketch1.addConstraint(Sketcher.Constraint("Parallel", 26, 28))
sketch1.addConstraint(Sketcher.Constraint("Parallel", 27, 29))
sketch1.addConstraint(Sketcher.Constraint("Parallel", 28, 30))
sketch1.addConstraint(Sketcher.Constraint("Parallel", 29, 31))
sketch1.addConstraint(Sketcher.Constraint("Parallel", 30, 32))
sketch1.addConstraint(Sketcher.Constraint("Parallel", 31, 33))
sketch1.addConstraint(Sketcher.Constraint("Parallel", 32, 34))
sketch1.addConstraint(Sketcher.Constraint("Parallel", 33, 35))
sketch1.addConstraint(Sketcher.Constraint("Parallel", 34, 36))
sketch1.addConstraint(Sketcher.Constraint("Parallel", 35, 37))
sketch1.addConstraint(Sketcher.Constraint("Parallel", 36, 38))
sketch1.addConstraint(Sketcher.Constraint("Parallel", 37, 39))
sketch1.addConstraint(Sketcher.Constraint("Parallel", 38, 40))
sketch1.addConstraint(Sketcher.Constraint("Parallel", 39, 41))
sketch1.addConstraint(Sketcher.Constraint("Parallel", 40, 42))
sketch1.addConstraint(Sketcher.Constraint("Parallel", 41, 43))
sketch1.addConstraint(Sketcher.Constraint("Parallel", 42, 44))
sketch1.addConstraint(Sketcher.Constraint("Parallel", 43, 45))
sketch1.addConstraint(Sketcher.Constraint("Parallel", 44, 46))
sketch1.addConstraint(Sketcher.Constraint("Parallel", 45, 47))
sketch1.addConstraint(Sketcher.Constraint("Parallel", 46, 48))
sketch1.addConstraint(Sketcher.Constraint("Parallel", 47, 49))
sketch1.addConstraint(Sketcher.Constraint("Parallel", 48, 50))
sketch1.addConstraint(Sketcher.Constraint("Parallel", 49, 51))
sketch1.addConstraint(Sketcher.Constraint("Parallel", 50, 52))
sketch1.addConstraint(Sketcher.Constraint("Parallel", 51, 53))
sketch1.addConstraint(Sketcher.Constraint("Parallel", 52, 54))
sketch1.addConstraint(Sketcher.Constraint("Parallel", 53, 55))
sketch1.addConstraint(Sketcher.Constraint("Parallel", 54, 56))
sketch1.addConstraint(Sketcher.Constraint("Parallel", 55, 57))
sketch1.addConstraint(Sketcher.Constraint("Parallel", 56, 58))
sketch1.addConstraint(Sketcher.Constraint("Parallel", 57, 59))
sketch1.addConstraint(Sketcher.Constraint("Parallel", 58, 60))
sketch1.addConstraint(Sketcher.Constraint("Parallel", 59, 61))
sketch1.addConstraint(Sketcher.Constraint("Parallel", 60, 62))
sketch1.addConstraint(Sketcher.Constraint("Parallel", 61, 63))
sketch1.addConstraint(Sketcher.Constraint("Parallel", 62, 64))
sketch1.addConstraint(Sketcher.Constraint("Parallel", 63, 65))
sketch1.addConstraint(Sketcher.Constraint("Parallel", 64, 66))
sketch1.addConstraint(Sketcher.Constraint("Parallel", 65, 67))
sketch1.addConstraint(Sketcher.Constraint("Parallel", 66, 68))
sketch1.addConstraint(Sketcher.Constraint("Parallel", 67, 69))
sketch1.addConstraint(Sketcher.Constraint("Parallel", 68, 70))
sketch1.addConstraint(Sketcher.Constraint("Parallel", 69, 71))
sketch1.addConstraint(Sketcher.Constraint("Parallel", 70, 72))
sketch1.addConstraint(Sketcher.Constraint("Parallel", 71, 73))
sketch1.addConstraint(Sketcher.Constraint("Parallel", 72, 74))
sketch1.addConstraint(Sketcher.Constraint("Parallel", 73, 75))
sketch1.addConstraint(Sketcher.Constraint("Parallel", 74, 76))
sketch1.addConstraint(Sketcher.Constraint("Parallel", 75, 77))
sketch1.addConstraint(Sketcher.Constraint("Parallel", 76, 78))
sketch1.addConstraint(Sketcher.Constraint("Parallel", 77, 79))
sketch1.addConstraint(Sketcher.Constraint("Parallel", 78, 80))
sketch1.addConstraint(Sketcher.Constraint("Horizontal", 6, 2, 8, 2))
sketch1.addConstraint(Sketcher.Constraint("Horizontal", 7, 2, 9, 2))
sketch1.addConstraint(Sketcher.Constraint("Horizontal", 8, 2, 10, 2))
sketch1.addConstraint(Sketcher.Constraint("Horizontal", 9, 2, 11, 2))
sketch1.addConstraint(Sketcher.Constraint("Horizontal", 10, 2, 12, 2))
sketch1.addConstraint(Sketcher.Constraint("Horizontal", 11, 2, 13, 2))
sketch1.addConstraint(Sketcher.Constraint("Horizontal", 12, 2, 14, 2))
sketch1.addConstraint(Sketcher.Constraint("Horizontal", 13, 2, 15, 2))
sketch1.addConstraint(Sketcher.Constraint("Horizontal", 14, 2, 16, 2))
sketch1.addConstraint(Sketcher.Constraint("Horizontal", 15, 2, 17, 2))
sketch1.addConstraint(Sketcher.Constraint("Horizontal", 16, 2, 18, 2))
sketch1.addConstraint(Sketcher.Constraint("Horizontal", 17, 2, 19, 2))
sketch1.addConstraint(Sketcher.Constraint("Horizontal", 18, 2, 20, 2))
sketch1.addConstraint(Sketcher.Constraint("Horizontal", 19, 2, 21, 2))
sketch1.addConstraint(Sketcher.Constraint("Horizontal", 20, 2, 22, 2))
sketch1.addConstraint(Sketcher.Constraint("Horizontal", 21, 2, 23, 2))
sketch1.addConstraint(Sketcher.Constraint("Horizontal", 22, 2, 24, 2))
sketch1.addConstraint(Sketcher.Constraint("Horizontal", 23, 2, 25, 2))
sketch1.addConstraint(Sketcher.Constraint("Horizontal", 24, 2, 26, 2))
sketch1.addConstraint(Sketcher.Constraint("Horizontal", 25, 2, 27, 2))
sketch1.addConstraint(Sketcher.Constraint("Horizontal", 26, 2, 28, 2))
sketch1.addConstraint(Sketcher.Constraint("Horizontal", 27, 2, 29, 2))
sketch1.addConstraint(Sketcher.Constraint("Horizontal", 28, 2, 30, 2))
sketch1.addConstraint(Sketcher.Constraint("Horizontal", 29, 2, 31, 2))
sketch1.addConstraint(Sketcher.Constraint("Horizontal", 30, 2, 32, 2))
sketch1.addConstraint(Sketcher.Constraint("Horizontal", 31, 2, 33, 2))
sketch1.addConstraint(Sketcher.Constraint("Horizontal", 32, 2, 34, 2))
sketch1.addConstraint(Sketcher.Constraint("Horizontal", 33, 2, 35, 2))
sketch1.addConstraint(Sketcher.Constraint("Horizontal", 34, 2, 36, 2))
sketch1.addConstraint(Sketcher.Constraint("Horizontal", 35, 2, 37, 2))
sketch1.addConstraint(Sketcher.Constraint("Horizontal", 36, 2, 38, 2))
sketch1.addConstraint(Sketcher.Constraint("Horizontal", 37, 2, 39, 2))
sketch1.addConstraint(Sketcher.Constraint("Horizontal", 38, 2, 40, 2))
sketch1.addConstraint(Sketcher.Constraint("Horizontal", 39, 2, 41, 2))
sketch1.addConstraint(Sketcher.Constraint("Horizontal", 40, 2, 42, 2))
sketch1.addConstraint(Sketcher.Constraint("Horizontal", 41, 2, 43, 2))
sketch1.addConstraint(Sketcher.Constraint("Horizontal", 42, 2, 44, 2))
sketch1.addConstraint(Sketcher.Constraint("Horizontal", 43, 2, 45, 2))
sketch1.addConstraint(Sketcher.Constraint("Horizontal", 44, 2, 46, 2))
sketch1.addConstraint(Sketcher.Constraint("Horizontal", 45, 2, 47, 2))
sketch1.addConstraint(Sketcher.Constraint("Horizontal", 46, 2, 48, 2))
sketch1.addConstraint(Sketcher.Constraint("Horizontal", 47, 2, 49, 2))
sketch1.addConstraint(Sketcher.Constraint("Horizontal", 48, 2, 50, 2))
sketch1.addConstraint(Sketcher.Constraint("Horizontal", 49, 2, 51, 2))
sketch1.addConstraint(Sketcher.Constraint("Horizontal", 50, 2, 52, 2))
sketch1.addConstraint(Sketcher.Constraint("Horizontal", 51, 2, 53, 2))
sketch1.addConstraint(Sketcher.Constraint("Horizontal", 52, 2, 54, 2))
sketch1.addConstraint(Sketcher.Constraint("Horizontal", 53, 2, 55, 2))
sketch1.addConstraint(Sketcher.Constraint("Horizontal", 54, 2, 56, 2))
sketch1.addConstraint(Sketcher.Constraint("Horizontal", 55, 2, 57, 2))
sketch1.addConstraint(Sketcher.Constraint("Horizontal", 56, 2, 58, 2))
sketch1.addConstraint(Sketcher.Constraint("Horizontal", 57, 2, 59, 2))
sketch1.addConstraint(Sketcher.Constraint("Horizontal", 58, 2, 60, 2))
sketch1.addConstraint(Sketcher.Constraint("Horizontal", 59, 2, 61, 2))
sketch1.addConstraint(Sketcher.Constraint("Horizontal", 60, 2, 62, 2))
sketch1.addConstraint(Sketcher.Constraint("Horizontal", 61, 2, 63, 2))
sketch1.addConstraint(Sketcher.Constraint("Horizontal", 62, 2, 64, 2))
sketch1.addConstraint(Sketcher.Constraint("Horizontal", 63, 2, 65, 2))
sketch1.addConstraint(Sketcher.Constraint("Horizontal", 64, 2, 66, 2))
sketch1.addConstraint(Sketcher.Constraint("Horizontal", 65, 2, 67, 2))
sketch1.addConstraint(Sketcher.Constraint("Horizontal", 66, 2, 68, 2))
sketch1.addConstraint(Sketcher.Constraint("Horizontal", 67, 2, 69, 2))
sketch1.addConstraint(Sketcher.Constraint("Horizontal", 68, 2, 70, 2))
sketch1.addConstraint(Sketcher.Constraint("Horizontal", 69, 2, 71, 2))
sketch1.addConstraint(Sketcher.Constraint("Horizontal", 70, 2, 72, 2))
sketch1.addConstraint(Sketcher.Constraint("Horizontal", 71, 2, 73, 2))
sketch1.addConstraint(Sketcher.Constraint("Horizontal", 72, 2, 74, 2))
sketch1.addConstraint(Sketcher.Constraint("Horizontal", 73, 2, 75, 2))
sketch1.addConstraint(Sketcher.Constraint("Horizontal", 74, 2, 76, 2))
sketch1.addConstraint(Sketcher.Constraint("Horizontal", 75, 2, 77, 2))
sketch1.addConstraint(Sketcher.Constraint("Horizontal", 76, 2, 78, 2))
sketch1.addConstraint(Sketcher.Constraint("Horizontal", 77, 2, 79, 2))
sketch1.addConstraint(Sketcher.Constraint("Horizontal", 78, 2, 80, 2))
sketch1.addConstraint(Sketcher.Constraint("Vertical", 1, 2, 4, 2))
sketch1.addConstraint(Sketcher.Constraint("Equal", 7, 8))
sketch1.addConstraint(Sketcher.Constraint("DistanceX", 0, 2, 0, 1, 60.0))
sketch1.addConstraint(Sketcher.Constraint("DistanceY", 82, 1, 82, 2, 12.65))
sketch1.addConstraint(Sketcher.Constraint("DistanceX", 6, 1, 6, 2, 1.415))
sketch1.addConstraint(Sketcher.Constraint("DistanceX", 81, 1, 81, 2, 0.495))
sketch1.addConstraint(Sketcher.Constraint("DistanceY", 1, 2, 1, 1, 10.186972))
sketch1.addConstraint(Sketcher.Constraint("DistanceY", 3, 2, 3, 1, 1.06332))
sketch1.addConstraint(Sketcher.Constraint("Distance", 7, 2.691451))
sketch1.addConstraint(Sketcher.Constraint("DistanceX", 2, 2, 2, 1, 6.356053))
sketch1.addConstraint(Sketcher.Constraint("DistanceX", 0, 2, -1, 1, 70.229682))
sketch1.addConstraint(Sketcher.Constraint("DistanceY", 0, 2, -1, 1, 19.726325))
pad1 = body.newObject("PartDesign::Pad", "Pad")
pad1.Profile = sketch1
pad1.Length = 15.5

sketch2 = body.newObject("Sketcher::SketchObject", "Sketch001")
sketch2.AttachmentSupport = (doc.getObject("YZ_Plane"), [""])
sketch2.MapMode = "FlatFace"
sketch2.AttachmentOffset = App.Placement(Vector(0, 0, -70.229682), App.Rotation())
sketch2.addGeometry(Part.LineSegment(Vector(-23.8, 6, 0), Vector(-23.8, 5, 0)), False)
sketch2.addGeometry(Part.ArcOfCircle(Part.Circle(Vector(-25.8, 5, 0), Vector(0, 0, 1), 2), math.radians(-90), math.radians(0)), False)
sketch2.addGeometry(Part.LineSegment(Vector(-25.8, 3, 0), Vector(-28, 3, 0)), False)
sketch2.addGeometry(Part.LineSegment(Vector(-28, 3, 0), Vector(-28, 12.5, 0)), False)
sketch2.addGeometry(Part.LineSegment(Vector(-28, 12.5, 0), Vector(-25.8, 12.5, 0)), False)
sketch2.addGeometry(Part.ArcOfCircle(Part.Circle(Vector(-25.8, 10.5, 0), Vector(0, 0, 1), 2), math.radians(0), math.radians(90)), False)
sketch2.addGeometry(Part.LineSegment(Vector(-23.8, 10.5, 0), Vector(-23.8, 9.4, 0)), False)
sketch2.addGeometry(Part.LineSegment(Vector(-23.8, 9.4, 0), Vector(-19.7, 9.4, 0)), False)
sketch2.addGeometry(Part.LineSegment(Vector(-19.7, 9.4, 0), Vector(-19.7, 6, 0)), False)
sketch2.addGeometry(Part.LineSegment(Vector(-19.7, 6, 0), Vector(-23.8, 6, 0)), False)
sketch2.addConstraint(Sketcher.Constraint("Tangent", 0, 2, 1, 2))
sketch2.addConstraint(Sketcher.Constraint("Tangent", 1, 1, 2, 1))
sketch2.addConstraint(Sketcher.Constraint("Coincident", 2, 2, 3, 1))
sketch2.addConstraint(Sketcher.Constraint("Coincident", 3, 2, 4, 1))
sketch2.addConstraint(Sketcher.Constraint("Tangent", 4, 2, 5, 2))
sketch2.addConstraint(Sketcher.Constraint("Tangent", 5, 1, 6, 1))
sketch2.addConstraint(Sketcher.Constraint("Coincident", 6, 2, 7, 1))
sketch2.addConstraint(Sketcher.Constraint("Coincident", 7, 2, 8, 1))
sketch2.addConstraint(Sketcher.Constraint("Coincident", 8, 2, 9, 1))
sketch2.addConstraint(Sketcher.Constraint("Coincident", 9, 2, 0, 1))
sketch2.addConstraint(Sketcher.Constraint("Vertical", 0))
sketch2.addConstraint(Sketcher.Constraint("Horizontal", 2))
sketch2.addConstraint(Sketcher.Constraint("Vertical", 3))
sketch2.addConstraint(Sketcher.Constraint("Horizontal", 4))
sketch2.addConstraint(Sketcher.Constraint("Vertical", 6))
sketch2.addConstraint(Sketcher.Constraint("Horizontal", 7))
sketch2.addConstraint(Sketcher.Constraint("Vertical", 8))
sketch2.addConstraint(Sketcher.Constraint("Horizontal", 9))
sketch2.addConstraint(Sketcher.Constraint("Equal", 1, 5))
sketch2.addConstraint(Sketcher.Constraint("Vertical", 1, 3, 5, 3))
sketch2.addConstraint(Sketcher.Constraint("Equal", 0, 6))
sketch2.addConstraint(Sketcher.Constraint("Radius", 1, 2.0))
sketch2.addConstraint(Sketcher.Constraint("DistanceX", 2, 2, 2, 1, 2.2))
sketch2.addConstraint(Sketcher.Constraint("DistanceX", 7, 1, 7, 2, 4.1))
sketch2.addConstraint(Sketcher.Constraint("DistanceY", 3, 1, 3, 2, 9.5))
sketch2.addConstraint(Sketcher.Constraint("DistanceY", 8, 2, 8, 1, 3.4))
sketch2.addConstraint(Sketcher.Constraint("DistanceY", -1, 1, 1, 3, 5.0))
sketch2.addConstraint(Sketcher.Constraint("DistanceX", 1, 3, -1, 1, 25.826325))
pocket1 = body.newObject("PartDesign::Pocket", "Pocket")
pocket1.Profile = sketch2
pocket1.Length = 81.5
pocket1.Reversed = True

doc.recompute()
